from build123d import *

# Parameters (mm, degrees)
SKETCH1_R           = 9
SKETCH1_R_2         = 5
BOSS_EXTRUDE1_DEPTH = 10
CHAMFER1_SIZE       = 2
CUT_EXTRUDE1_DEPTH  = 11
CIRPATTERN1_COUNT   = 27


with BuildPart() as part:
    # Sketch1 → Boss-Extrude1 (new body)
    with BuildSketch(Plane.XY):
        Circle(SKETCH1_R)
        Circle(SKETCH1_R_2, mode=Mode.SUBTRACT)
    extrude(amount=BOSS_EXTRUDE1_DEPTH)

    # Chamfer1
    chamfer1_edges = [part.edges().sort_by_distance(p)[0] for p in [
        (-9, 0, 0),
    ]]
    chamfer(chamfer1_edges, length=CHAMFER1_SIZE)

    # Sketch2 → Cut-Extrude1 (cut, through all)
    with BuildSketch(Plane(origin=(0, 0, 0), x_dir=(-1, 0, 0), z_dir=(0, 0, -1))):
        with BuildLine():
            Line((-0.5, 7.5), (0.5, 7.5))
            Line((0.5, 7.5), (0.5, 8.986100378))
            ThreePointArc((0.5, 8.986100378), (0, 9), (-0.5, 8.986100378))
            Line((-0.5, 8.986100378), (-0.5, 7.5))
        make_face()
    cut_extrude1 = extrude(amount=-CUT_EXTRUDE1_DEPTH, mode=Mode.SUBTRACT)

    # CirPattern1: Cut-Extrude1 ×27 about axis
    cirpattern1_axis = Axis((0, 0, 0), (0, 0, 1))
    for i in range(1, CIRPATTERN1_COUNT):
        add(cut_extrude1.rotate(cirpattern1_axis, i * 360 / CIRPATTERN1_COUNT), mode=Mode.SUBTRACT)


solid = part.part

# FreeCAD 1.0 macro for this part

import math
import FreeCAD as App
import Part
import Sketcher
from FreeCAD import Vector


def edges_at(feature, points):
    """Names of the edges that pass closest to the given points."""
    edges = feature.Shape.Edges
    near = lambda p: min(range(len(edges)), key=lambda i: edges[i].distToShape(Part.Vertex(*p))[0])
    return sorted({f"Edge{near(p) + 1}" for p in points})

doc = App.newDocument("Part")
params = doc.addObject("Spreadsheet::Sheet", "Params")
for row, (alias, value) in enumerate([
    ("sketch1_diameter", "18 mm"),
    ("sketch1_diameter2", "10 mm"),
    ("pad1_length", "10 mm"),
    ("chamfer_size", "2 mm"),
    ("sketch2_radius", "9 mm"),
    ("sketch2_width", "1 mm"),
], start=1):
    params.set(f"A{row}", alias)
    params.set(f"B{row}", "=" + value)
    params.setAlias(f"B{row}", alias)

body = doc.addObject("PartDesign::Body", "Body")

sketch1 = body.newObject("Sketcher::SketchObject", "Sketch")
sketch1.AttachmentSupport = (doc.getObject("XY_Plane"), [""])
sketch1.MapMode = "FlatFace"
sketch1.addGeometry([
    Part.Circle(Vector(0, 0, 0), Vector(0, 0, 1), 9),
    Part.Circle(Vector(0, 0, 0), Vector(0, 0, 1), 5),
], False)
sketch1.addConstraint([
    Sketcher.Constraint("Coincident", 0, 3, -1, 1),
    Sketcher.Constraint("Coincident", 1, 3, -1, 1),
    Sketcher.Constraint("Diameter", 0, 18.0),
    Sketcher.Constraint("Diameter", 1, 10.0),
])
sketch1.setExpression("Constraints[2]", "Params.sketch1_diameter")
sketch1.setExpression("Constraints[3]", "Params.sketch1_diameter2")
pad1 = body.newObject("PartDesign::Pad", "Pad")
pad1.Profile = sketch1
pad1.setExpression("Length", "Params.pad1_length")
doc.recompute()

chamfer = body.newObject("PartDesign::Chamfer", "Chamfer")
chamfer.Base = (pad1, edges_at(pad1, [(-9, 0, 0)]))
chamfer.setExpression("Size", "Params.chamfer_size")

sketch2 = body.newObject("Sketcher::SketchObject", "Sketch001")
sketch2.AttachmentSupport = (doc.getObject("XY_Plane"), [""])
sketch2.MapMode = "FlatFace"
sketch2.addGeometry([
    Part.LineSegment(Vector(0.5, 7.5, 0), Vector(-0.5, 7.5, 0)),
    Part.LineSegment(Vector(-0.5, 7.5, 0), Vector(-0.5, 9, 0)),
    Part.ArcOfCircle(Part.Circle(Vector(0, 0, 0), Vector(0, 0, 1), 9), math.radians(86.82), math.radians(93.18)),
    Part.LineSegment(Vector(0.5, 9, 0), Vector(0.5, 7.5, 0)),
], False)
sketch2.addConstraint([
    Sketcher.Constraint("Coincident", 0, 2, 1, 1),
    Sketcher.Constraint("Coincident", 1, 2, 2, 2),
    Sketcher.Constraint("Coincident", 2, 1, 3, 1),
    Sketcher.Constraint("Coincident", 3, 2, 0, 1),
    Sketcher.Constraint("Horizontal", 0),
    Sketcher.Constraint("Vertical", 1),
    Sketcher.Constraint("Vertical", 3),
    Sketcher.Constraint("Coincident", 2, 3, -1, 1),
    Sketcher.Constraint("Horizontal", 1, 2, 2, 1),
    Sketcher.Constraint("Radius", 2, 9.0),
    Sketcher.Constraint("DistanceX", 0, 2, 0, 1, 1.0),
    Sketcher.Constraint("DistanceY", -1, 1, 0, 2, 7.5),
])
sketch2.setExpression("Constraints[9]", "Params.sketch2_radius")
sketch2.setExpression("Constraints[10]", "Params.sketch2_width")
pocket1 = body.newObject("PartDesign::Pocket", "Pocket")
pocket1.Profile = sketch2
pocket1.Type = "ThroughAll"
pocket1.Reversed = True
doc.recompute()

polarpattern = body.newObject("PartDesign::PolarPattern", "PolarPattern")
polarpattern.Originals = [pocket1]
polarpattern.Axis = (doc.getObject("Z_Axis"), [""])
polarpattern.Angle = 360
polarpattern.Occurrences = 27
body.Tip = polarpattern

doc.recompute()
